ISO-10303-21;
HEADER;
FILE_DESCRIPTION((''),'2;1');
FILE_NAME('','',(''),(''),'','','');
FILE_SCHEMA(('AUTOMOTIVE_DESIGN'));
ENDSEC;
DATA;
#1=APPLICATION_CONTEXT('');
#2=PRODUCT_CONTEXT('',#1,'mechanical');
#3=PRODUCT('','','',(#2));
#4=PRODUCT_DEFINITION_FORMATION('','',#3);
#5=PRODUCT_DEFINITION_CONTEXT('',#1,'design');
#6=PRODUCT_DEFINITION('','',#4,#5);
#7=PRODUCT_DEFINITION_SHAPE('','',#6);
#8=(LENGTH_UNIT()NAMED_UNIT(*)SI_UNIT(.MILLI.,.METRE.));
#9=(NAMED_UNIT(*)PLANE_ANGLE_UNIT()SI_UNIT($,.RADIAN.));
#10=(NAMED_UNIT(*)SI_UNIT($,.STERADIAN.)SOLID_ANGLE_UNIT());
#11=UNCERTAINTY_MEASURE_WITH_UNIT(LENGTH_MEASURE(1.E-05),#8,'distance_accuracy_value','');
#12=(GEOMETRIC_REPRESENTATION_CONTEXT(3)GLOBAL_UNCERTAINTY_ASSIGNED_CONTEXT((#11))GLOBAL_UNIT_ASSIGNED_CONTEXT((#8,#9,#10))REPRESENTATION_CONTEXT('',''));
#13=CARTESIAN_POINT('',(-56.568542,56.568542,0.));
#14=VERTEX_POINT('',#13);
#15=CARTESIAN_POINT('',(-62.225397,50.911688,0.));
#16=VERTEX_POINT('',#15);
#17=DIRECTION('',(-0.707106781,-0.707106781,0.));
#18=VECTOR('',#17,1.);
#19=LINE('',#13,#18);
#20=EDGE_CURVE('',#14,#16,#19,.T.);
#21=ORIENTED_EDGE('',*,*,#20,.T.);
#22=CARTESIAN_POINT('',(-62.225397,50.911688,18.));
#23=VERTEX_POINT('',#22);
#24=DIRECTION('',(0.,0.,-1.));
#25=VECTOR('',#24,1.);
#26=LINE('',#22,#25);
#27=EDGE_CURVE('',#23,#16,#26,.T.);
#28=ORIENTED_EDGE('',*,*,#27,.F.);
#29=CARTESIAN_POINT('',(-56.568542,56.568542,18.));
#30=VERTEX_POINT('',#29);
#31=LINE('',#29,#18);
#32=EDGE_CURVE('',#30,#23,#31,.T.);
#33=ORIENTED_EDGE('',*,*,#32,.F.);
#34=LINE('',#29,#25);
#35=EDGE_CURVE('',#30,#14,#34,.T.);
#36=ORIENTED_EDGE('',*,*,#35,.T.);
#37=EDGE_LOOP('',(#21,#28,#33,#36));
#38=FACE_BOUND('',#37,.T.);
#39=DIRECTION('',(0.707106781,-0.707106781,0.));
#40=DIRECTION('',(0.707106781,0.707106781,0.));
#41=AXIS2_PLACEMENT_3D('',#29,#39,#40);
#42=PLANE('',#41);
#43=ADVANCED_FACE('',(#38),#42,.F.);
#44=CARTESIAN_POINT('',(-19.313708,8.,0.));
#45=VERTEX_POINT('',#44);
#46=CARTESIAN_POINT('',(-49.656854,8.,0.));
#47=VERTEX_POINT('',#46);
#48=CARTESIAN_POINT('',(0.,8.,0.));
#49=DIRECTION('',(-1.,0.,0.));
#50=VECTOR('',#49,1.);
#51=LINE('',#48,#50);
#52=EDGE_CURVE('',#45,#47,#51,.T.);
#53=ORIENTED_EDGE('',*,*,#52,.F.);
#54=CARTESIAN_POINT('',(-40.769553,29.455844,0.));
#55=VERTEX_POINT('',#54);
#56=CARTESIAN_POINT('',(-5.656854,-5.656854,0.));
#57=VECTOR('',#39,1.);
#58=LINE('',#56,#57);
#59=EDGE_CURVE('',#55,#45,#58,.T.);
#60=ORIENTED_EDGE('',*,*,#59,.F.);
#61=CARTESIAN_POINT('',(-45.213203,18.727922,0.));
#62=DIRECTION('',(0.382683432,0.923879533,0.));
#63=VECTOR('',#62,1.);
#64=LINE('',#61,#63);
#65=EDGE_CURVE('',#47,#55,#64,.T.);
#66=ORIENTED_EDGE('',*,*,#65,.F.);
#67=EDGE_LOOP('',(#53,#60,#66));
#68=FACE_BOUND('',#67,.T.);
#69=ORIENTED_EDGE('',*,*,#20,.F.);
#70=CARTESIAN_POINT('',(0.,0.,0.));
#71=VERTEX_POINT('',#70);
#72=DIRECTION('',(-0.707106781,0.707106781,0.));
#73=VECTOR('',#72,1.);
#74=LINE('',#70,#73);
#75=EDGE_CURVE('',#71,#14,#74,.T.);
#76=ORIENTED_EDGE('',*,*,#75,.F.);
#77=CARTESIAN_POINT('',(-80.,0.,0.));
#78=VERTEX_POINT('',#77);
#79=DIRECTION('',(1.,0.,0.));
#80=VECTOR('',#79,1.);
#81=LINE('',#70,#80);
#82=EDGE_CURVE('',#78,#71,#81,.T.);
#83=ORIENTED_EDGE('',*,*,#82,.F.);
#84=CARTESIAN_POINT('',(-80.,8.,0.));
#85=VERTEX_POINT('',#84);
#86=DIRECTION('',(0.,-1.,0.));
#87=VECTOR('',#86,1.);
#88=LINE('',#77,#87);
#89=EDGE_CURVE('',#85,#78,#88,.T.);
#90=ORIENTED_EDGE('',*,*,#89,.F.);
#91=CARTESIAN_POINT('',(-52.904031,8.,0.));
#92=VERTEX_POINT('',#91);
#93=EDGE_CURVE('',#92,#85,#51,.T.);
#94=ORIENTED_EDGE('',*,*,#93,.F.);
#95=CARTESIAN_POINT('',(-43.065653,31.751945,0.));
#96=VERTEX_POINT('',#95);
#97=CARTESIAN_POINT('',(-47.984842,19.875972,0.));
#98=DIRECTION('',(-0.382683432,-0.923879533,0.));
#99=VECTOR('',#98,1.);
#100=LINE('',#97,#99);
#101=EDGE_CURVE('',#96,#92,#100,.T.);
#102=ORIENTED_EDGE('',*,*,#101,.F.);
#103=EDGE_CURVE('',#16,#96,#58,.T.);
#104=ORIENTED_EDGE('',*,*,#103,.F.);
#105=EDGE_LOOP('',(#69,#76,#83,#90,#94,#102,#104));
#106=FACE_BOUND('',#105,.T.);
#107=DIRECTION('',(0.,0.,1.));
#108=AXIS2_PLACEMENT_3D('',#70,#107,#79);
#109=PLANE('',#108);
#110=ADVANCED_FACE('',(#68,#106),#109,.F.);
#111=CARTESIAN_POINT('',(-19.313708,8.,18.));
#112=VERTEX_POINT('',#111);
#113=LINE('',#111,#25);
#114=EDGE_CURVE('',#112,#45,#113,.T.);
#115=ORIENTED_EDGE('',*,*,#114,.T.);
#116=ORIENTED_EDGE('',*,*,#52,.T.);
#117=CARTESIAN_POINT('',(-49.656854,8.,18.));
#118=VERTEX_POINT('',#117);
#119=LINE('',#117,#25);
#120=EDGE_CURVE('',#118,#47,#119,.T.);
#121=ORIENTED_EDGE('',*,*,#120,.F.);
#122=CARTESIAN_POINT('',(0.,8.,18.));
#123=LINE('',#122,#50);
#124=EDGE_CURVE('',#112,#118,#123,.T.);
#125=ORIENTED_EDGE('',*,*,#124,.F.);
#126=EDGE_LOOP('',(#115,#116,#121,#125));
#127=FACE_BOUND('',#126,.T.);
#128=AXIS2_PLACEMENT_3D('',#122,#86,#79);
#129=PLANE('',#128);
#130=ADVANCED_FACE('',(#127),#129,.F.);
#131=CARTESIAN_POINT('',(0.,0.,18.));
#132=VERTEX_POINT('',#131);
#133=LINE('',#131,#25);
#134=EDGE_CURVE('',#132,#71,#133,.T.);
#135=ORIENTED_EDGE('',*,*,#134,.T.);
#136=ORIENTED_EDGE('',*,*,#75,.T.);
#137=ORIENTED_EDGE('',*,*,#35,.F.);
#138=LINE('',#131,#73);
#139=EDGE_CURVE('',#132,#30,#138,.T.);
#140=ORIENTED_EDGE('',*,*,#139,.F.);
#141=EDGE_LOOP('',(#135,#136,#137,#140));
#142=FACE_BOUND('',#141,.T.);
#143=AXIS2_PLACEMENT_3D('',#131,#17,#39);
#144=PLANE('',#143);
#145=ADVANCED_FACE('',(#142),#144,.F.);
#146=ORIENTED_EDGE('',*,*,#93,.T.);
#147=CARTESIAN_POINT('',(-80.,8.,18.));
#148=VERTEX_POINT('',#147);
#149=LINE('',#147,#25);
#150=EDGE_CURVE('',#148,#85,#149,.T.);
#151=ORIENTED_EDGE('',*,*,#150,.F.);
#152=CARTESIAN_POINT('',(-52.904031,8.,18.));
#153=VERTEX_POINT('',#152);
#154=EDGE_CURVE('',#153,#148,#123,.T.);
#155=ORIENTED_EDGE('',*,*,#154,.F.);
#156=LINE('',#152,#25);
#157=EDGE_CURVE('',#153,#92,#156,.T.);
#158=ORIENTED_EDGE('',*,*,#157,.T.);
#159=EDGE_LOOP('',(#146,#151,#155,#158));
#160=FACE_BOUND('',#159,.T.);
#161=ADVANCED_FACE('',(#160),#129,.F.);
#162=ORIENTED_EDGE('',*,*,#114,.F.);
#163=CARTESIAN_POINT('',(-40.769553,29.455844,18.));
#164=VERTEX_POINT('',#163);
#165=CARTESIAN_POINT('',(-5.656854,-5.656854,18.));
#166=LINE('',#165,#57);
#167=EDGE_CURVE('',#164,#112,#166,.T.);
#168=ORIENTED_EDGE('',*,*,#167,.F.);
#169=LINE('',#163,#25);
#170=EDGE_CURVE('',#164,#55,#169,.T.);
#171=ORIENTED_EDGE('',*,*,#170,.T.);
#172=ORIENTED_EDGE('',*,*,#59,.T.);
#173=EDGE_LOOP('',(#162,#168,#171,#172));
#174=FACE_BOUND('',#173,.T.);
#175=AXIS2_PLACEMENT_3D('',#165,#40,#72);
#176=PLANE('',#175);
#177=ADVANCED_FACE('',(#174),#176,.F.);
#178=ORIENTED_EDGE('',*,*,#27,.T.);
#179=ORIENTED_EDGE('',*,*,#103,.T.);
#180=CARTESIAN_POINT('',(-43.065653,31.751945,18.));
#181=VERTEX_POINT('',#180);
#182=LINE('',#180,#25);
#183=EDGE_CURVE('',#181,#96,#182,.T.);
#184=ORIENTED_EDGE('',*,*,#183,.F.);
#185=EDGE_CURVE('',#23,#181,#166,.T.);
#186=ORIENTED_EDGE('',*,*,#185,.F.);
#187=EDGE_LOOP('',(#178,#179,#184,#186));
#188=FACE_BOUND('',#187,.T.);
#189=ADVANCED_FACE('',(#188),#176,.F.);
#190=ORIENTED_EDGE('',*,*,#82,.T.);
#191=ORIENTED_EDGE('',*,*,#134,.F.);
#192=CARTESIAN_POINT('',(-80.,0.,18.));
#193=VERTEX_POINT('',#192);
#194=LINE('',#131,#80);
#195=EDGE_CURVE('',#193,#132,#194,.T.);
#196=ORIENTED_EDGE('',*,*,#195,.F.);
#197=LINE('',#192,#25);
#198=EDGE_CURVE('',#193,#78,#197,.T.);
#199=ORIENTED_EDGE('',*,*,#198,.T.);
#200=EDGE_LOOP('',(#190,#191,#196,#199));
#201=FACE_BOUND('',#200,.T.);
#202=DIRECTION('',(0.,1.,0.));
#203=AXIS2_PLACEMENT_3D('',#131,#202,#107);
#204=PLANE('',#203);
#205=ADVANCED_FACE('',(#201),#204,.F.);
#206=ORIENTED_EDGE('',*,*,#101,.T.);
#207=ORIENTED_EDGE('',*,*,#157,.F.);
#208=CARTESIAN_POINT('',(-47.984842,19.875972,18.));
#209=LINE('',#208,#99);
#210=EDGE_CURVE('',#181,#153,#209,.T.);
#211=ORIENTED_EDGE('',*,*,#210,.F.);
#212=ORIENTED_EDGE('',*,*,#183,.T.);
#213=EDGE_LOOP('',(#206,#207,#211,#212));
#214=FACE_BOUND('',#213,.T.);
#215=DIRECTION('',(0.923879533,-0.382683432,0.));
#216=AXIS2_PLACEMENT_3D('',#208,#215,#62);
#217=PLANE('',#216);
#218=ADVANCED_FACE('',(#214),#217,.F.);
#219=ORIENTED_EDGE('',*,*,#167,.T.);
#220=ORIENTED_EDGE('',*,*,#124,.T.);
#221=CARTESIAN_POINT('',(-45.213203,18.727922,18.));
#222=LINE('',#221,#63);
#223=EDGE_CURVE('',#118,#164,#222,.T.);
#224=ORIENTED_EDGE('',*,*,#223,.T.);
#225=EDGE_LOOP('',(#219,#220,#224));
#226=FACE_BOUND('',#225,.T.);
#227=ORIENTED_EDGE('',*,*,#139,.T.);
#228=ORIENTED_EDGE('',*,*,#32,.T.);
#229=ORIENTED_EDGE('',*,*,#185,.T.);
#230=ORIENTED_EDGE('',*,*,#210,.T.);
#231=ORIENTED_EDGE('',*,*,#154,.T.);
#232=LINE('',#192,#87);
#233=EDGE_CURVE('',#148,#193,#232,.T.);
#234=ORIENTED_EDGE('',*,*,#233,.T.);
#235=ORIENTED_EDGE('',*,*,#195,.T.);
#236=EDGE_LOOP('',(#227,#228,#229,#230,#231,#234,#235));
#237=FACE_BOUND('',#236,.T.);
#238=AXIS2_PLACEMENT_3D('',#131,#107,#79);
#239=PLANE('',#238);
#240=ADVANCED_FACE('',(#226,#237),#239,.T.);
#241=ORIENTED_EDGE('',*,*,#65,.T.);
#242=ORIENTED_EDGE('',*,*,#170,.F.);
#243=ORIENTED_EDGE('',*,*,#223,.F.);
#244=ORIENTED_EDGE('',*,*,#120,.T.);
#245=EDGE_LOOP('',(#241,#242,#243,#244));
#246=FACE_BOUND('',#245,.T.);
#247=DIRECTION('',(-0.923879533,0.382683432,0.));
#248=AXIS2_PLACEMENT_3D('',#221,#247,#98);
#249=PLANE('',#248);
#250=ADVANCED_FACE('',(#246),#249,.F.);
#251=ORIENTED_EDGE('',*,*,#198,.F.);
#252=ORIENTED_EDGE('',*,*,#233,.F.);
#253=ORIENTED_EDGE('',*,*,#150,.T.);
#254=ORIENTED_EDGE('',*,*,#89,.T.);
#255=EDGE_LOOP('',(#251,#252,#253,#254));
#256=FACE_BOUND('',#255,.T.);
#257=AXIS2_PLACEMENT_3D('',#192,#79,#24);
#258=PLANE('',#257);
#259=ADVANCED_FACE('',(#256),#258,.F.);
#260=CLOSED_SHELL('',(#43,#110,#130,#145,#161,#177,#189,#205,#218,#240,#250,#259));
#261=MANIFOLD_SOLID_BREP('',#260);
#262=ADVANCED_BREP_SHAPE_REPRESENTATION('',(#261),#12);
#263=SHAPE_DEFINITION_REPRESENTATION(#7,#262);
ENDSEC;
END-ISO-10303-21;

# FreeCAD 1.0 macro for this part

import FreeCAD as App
import Part
import Sketcher
from FreeCAD import Vector
Q = App.Units.Quantity


def add_polygon(sketch, points):
    """Adds a closed chain of lines whose ends are joined by coincident constraints."""
    first, n = sketch.GeometryCount, len(points)
    for a, b in zip(points, points[1:] + points[:1]):
        sketch.addGeometry(Part.LineSegment(App.Vector(*a, 0), App.Vector(*b, 0)), False)
    for i in range(n):
        sketch.addConstraint(Sketcher.Constraint("Coincident", first + i, 2, first + (i + 1) % n, 1))

doc = App.newDocument("Part")
body = doc.addObject("PartDesign::Body", "Body")

# Sketch on XY plane
sketch1 = body.newObject("Sketcher::SketchObject", "Sketch")
sketch1.AttachmentSupport = (doc.getObject("XY_Plane"), [""])
sketch1.MapMode = "FlatFace"
add_polygon(sketch1, [(-52.904031, 8), (-80, 8), (-80, 0), (0, 0), (-56.568542, 56.568542), (-62.225397, 50.911688), (-43.065653, 31.751945)])  # lines 0-6
add_polygon(sketch1, [(-19.313708, 8), (-49.656854, 8), (-40.769553, 29.455844)])  # lines 7-9
sketch1.addConstraint([
    Sketcher.Constraint("Horizontal", 0),
    Sketcher.Constraint("Vertical", 1),
    Sketcher.Constraint("Horizontal", 2),
    Sketcher.Constraint("Horizontal", 7),
    Sketcher.Constraint("Coincident", 2, 2, -1, 1),
    Sketcher.Constraint("Perpendicular", 3, 4),
    Sketcher.Constraint("Perpendicular", 4, 5),
    Sketcher.Constraint("Parallel", 6, 8),
    Sketcher.Constraint("Parallel", 5, 9),
    Sketcher.Constraint("Horizontal", 6, 2, 7, 2),
    Sketcher.Constraint("DistanceX", 2, 1, 2, 2, Q("80 mm")),
    Sketcher.Constraint("DistanceY", 1, 2, 1, 1, Q("8 mm")),
    Sketcher.Constraint("Angle", 3, Q("135 deg")),
    Sketcher.Constraint("Distance", 3, Q("80 mm")),
    Sketcher.Constraint("Distance", 4, Q("8 mm")),
    Sketcher.Constraint("Angle", 6, Q("-112.5 deg")),
    Sketcher.Constraint("DistanceX", 0, 2, 0, 1, Q("27.095969 mm")),
    Sketcher.Constraint("DistanceX", 7, 2, 5, 2, Q("6.591201 mm")),
    Sketcher.Constraint("DistanceX", 5, 2, 8, 2, Q("2.296101 mm")),
])
pad1 = body.newObject("PartDesign::Pad", "Pad")
pad1.Profile = sketch1
pad1.Length = 18

doc.recompute()
